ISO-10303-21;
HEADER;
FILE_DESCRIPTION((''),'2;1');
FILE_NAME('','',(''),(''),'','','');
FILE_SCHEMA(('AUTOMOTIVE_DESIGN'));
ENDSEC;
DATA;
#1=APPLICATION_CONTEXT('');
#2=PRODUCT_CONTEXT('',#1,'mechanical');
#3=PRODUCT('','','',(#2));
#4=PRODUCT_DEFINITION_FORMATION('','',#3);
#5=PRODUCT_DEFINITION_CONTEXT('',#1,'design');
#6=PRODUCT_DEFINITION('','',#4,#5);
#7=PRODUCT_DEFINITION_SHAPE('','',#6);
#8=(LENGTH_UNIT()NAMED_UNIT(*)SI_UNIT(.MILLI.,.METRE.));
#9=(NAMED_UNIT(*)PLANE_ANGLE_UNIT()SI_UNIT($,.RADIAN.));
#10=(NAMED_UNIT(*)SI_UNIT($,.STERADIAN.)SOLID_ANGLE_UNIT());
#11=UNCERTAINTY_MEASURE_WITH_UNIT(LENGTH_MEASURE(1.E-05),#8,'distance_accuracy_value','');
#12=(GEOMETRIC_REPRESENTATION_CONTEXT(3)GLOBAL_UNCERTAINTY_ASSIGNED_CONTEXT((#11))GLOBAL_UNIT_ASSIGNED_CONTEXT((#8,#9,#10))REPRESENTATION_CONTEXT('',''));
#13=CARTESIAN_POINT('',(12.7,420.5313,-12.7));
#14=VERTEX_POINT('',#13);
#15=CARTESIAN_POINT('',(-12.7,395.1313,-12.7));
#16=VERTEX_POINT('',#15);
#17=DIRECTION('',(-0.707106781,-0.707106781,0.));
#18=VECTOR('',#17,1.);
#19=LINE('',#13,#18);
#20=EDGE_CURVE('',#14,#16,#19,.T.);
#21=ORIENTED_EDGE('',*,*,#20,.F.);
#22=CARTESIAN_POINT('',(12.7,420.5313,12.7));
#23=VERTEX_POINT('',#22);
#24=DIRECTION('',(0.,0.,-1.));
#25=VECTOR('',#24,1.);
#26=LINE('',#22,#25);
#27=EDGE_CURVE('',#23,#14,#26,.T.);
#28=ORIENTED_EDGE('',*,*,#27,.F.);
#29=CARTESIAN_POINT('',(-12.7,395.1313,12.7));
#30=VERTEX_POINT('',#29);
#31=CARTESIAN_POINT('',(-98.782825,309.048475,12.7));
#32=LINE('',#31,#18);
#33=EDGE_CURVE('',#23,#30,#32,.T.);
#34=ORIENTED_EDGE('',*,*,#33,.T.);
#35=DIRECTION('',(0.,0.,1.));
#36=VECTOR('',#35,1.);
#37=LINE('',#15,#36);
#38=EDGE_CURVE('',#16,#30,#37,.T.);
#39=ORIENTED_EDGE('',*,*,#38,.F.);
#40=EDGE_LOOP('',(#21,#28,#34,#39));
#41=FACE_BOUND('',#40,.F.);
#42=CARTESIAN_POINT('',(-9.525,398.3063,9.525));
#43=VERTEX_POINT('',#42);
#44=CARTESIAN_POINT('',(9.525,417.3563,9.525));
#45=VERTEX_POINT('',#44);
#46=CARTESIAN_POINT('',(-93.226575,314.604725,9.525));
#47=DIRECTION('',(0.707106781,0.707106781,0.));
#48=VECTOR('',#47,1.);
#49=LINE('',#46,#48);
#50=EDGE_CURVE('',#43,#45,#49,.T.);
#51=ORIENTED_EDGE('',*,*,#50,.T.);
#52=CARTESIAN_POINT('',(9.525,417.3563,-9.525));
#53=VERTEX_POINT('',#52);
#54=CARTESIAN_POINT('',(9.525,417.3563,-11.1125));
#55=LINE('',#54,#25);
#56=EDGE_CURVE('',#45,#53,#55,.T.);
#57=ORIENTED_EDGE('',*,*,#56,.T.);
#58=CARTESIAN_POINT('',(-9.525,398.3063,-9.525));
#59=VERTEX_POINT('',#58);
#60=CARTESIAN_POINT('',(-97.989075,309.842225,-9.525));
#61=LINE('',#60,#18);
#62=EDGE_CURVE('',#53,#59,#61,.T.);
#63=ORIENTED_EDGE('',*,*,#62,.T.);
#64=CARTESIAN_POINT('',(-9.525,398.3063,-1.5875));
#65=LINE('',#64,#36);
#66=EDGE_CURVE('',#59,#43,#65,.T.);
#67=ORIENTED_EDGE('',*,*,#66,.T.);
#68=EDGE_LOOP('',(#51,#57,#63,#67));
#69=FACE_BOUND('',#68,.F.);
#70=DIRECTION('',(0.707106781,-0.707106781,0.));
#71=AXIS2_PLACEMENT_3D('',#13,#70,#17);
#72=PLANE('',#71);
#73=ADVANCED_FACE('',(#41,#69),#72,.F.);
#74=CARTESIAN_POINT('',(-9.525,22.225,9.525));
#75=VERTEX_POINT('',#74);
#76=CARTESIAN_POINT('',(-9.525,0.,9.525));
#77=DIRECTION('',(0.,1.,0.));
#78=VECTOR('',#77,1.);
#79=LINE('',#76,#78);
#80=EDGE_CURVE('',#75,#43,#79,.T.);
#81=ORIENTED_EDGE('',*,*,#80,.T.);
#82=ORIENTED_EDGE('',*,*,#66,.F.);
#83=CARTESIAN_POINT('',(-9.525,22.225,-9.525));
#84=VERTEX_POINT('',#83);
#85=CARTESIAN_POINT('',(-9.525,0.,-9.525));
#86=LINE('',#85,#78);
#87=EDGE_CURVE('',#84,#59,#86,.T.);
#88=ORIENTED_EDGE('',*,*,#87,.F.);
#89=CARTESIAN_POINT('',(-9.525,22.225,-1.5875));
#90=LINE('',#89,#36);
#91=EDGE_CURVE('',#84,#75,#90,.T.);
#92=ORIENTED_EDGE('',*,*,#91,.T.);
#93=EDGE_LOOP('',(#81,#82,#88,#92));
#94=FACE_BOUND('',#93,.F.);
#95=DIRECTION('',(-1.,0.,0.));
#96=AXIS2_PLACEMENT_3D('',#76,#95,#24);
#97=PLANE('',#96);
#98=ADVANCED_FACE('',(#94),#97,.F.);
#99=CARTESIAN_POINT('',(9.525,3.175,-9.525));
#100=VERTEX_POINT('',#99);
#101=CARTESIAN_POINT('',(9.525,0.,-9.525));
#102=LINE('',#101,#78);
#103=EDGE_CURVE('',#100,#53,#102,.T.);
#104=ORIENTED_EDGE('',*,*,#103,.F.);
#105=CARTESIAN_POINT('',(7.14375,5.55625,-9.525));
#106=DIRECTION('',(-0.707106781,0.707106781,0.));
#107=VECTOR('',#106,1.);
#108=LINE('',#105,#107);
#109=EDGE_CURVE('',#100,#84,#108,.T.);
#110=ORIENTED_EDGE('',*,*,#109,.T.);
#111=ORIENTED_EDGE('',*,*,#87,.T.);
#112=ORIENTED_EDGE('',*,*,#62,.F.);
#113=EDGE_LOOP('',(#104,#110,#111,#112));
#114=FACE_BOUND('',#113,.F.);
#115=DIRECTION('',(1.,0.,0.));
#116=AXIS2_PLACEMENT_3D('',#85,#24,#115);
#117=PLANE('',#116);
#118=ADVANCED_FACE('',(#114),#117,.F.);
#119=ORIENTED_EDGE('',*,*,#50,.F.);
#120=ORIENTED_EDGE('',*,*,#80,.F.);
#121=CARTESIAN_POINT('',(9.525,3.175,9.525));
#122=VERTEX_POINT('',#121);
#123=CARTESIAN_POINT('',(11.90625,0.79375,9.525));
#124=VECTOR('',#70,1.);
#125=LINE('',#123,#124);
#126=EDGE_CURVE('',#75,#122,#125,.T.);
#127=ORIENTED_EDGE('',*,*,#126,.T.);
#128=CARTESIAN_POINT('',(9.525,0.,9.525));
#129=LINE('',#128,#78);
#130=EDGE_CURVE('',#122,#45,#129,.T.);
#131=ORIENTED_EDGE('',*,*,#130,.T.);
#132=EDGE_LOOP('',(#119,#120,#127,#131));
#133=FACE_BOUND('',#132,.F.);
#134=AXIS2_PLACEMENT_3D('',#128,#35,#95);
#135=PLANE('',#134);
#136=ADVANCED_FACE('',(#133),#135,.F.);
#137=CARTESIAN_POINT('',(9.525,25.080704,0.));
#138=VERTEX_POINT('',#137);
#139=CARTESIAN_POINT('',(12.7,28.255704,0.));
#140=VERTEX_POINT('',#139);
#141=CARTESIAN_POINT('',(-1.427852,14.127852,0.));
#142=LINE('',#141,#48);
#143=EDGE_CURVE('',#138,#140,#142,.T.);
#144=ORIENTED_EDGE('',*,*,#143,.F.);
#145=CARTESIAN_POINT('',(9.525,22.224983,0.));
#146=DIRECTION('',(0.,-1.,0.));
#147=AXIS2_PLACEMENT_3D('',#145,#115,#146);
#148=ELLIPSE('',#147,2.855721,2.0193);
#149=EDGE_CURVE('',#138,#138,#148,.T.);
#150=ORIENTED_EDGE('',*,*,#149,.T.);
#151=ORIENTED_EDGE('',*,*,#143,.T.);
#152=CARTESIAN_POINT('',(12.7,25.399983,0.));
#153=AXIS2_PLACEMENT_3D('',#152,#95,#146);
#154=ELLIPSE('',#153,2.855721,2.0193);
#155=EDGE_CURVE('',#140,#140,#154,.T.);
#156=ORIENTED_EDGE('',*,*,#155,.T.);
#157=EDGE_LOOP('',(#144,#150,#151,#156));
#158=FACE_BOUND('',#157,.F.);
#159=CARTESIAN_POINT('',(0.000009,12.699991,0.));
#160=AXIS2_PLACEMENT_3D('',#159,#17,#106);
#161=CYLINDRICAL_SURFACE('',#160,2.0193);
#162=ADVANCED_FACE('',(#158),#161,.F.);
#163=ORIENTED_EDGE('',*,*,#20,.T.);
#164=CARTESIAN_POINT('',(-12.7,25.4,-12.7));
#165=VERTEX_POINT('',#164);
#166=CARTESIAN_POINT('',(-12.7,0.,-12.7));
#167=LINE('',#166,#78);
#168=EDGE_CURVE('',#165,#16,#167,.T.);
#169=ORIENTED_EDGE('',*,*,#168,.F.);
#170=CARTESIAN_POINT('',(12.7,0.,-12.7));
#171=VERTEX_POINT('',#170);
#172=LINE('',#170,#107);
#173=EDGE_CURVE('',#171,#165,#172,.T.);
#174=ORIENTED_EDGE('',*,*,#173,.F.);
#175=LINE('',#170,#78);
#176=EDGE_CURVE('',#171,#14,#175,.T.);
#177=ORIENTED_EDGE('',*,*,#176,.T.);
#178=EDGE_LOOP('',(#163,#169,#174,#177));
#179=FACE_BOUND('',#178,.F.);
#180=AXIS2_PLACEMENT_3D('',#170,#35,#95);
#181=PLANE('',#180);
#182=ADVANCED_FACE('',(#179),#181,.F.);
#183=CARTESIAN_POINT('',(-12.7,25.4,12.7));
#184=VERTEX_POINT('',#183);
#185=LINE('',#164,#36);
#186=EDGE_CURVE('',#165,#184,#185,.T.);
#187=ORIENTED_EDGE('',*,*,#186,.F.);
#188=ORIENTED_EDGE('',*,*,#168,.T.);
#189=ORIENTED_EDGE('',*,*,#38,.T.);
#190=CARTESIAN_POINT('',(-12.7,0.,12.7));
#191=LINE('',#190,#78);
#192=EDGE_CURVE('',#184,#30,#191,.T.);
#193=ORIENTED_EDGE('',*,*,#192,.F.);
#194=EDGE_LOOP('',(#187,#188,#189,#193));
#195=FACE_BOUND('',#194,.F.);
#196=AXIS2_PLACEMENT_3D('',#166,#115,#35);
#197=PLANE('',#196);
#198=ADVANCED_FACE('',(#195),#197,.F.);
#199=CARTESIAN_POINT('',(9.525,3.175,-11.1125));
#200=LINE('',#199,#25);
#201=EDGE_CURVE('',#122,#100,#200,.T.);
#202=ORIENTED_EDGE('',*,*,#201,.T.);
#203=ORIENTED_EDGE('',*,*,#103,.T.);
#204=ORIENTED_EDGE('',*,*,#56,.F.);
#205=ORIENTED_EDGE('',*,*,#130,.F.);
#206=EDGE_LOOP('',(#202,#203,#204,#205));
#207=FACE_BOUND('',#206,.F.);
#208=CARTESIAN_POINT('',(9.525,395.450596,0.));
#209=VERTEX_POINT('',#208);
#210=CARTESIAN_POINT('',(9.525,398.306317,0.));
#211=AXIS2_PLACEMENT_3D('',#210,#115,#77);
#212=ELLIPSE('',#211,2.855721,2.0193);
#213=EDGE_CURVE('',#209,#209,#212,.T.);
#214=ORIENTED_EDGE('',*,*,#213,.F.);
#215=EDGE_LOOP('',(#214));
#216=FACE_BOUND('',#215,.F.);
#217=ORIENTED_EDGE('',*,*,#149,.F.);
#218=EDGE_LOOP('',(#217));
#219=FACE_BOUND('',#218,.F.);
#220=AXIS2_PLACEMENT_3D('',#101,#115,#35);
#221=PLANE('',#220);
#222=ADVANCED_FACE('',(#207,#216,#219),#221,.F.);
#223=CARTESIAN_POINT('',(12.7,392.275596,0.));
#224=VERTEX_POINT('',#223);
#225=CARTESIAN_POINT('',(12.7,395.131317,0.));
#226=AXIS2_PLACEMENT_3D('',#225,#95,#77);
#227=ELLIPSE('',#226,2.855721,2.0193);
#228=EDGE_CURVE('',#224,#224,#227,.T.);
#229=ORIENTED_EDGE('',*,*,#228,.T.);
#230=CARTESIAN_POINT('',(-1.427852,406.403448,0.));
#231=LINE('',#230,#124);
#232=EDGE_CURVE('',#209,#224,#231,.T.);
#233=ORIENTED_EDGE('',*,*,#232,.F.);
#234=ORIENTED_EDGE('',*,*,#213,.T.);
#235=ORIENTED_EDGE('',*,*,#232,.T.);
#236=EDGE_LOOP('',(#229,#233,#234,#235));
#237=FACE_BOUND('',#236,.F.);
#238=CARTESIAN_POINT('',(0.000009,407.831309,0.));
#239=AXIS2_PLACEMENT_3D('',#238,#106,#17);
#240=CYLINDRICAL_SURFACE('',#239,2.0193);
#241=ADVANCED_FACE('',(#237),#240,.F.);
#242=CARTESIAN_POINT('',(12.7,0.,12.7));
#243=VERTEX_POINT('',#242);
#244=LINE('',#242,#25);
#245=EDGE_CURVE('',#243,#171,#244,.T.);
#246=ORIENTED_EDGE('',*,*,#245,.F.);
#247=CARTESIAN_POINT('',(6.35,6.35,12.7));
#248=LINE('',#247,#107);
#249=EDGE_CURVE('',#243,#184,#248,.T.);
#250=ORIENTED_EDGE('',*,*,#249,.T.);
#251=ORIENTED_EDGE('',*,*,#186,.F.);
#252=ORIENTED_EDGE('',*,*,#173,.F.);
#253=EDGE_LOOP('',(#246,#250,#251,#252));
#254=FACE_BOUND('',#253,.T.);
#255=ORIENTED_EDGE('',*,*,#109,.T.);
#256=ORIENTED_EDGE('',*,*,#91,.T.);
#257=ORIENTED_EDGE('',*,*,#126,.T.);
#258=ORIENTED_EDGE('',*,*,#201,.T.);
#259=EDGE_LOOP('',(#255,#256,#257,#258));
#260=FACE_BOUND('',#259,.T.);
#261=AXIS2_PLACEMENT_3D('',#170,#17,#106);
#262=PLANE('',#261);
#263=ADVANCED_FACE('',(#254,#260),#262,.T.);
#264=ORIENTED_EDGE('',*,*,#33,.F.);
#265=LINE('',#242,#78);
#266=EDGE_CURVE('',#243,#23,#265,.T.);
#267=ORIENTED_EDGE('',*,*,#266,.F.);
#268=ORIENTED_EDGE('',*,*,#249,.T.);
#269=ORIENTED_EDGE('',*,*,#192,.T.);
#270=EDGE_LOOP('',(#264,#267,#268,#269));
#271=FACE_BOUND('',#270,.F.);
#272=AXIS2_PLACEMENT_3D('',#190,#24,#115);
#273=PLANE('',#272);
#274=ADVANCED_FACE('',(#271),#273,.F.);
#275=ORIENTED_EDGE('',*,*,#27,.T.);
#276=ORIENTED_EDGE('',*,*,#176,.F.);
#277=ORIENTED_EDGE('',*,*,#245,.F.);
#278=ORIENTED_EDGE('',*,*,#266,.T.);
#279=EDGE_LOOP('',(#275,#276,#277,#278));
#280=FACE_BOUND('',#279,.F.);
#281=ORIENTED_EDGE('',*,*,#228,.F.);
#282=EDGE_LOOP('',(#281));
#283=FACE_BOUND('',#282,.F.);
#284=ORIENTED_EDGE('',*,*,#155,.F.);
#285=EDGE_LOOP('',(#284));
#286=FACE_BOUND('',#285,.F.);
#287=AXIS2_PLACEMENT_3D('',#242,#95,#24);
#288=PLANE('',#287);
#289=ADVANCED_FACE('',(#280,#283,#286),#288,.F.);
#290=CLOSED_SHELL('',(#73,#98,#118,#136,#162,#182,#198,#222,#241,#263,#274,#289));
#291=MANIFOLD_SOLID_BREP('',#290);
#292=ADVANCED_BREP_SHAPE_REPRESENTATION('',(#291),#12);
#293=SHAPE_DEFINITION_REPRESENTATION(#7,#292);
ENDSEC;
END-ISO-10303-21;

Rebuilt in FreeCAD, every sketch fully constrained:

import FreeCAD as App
import Part
import Sketcher

V = App.Vector
Q = App.Units.Quantity

doc = App.newDocument("Part")
body = doc.addObject("PartDesign::Body", "Body")

# Sketch on XZ plane
sketch1 = body.newObject("Sketcher::SketchObject", "Sketch")
sketch1.AttachmentSupport = (doc.getObject("XZ_Plane"), [""])
sketch1.MapMode = "FlatFace"
sketch1.addGeometry([
    Part.LineSegment(V(12.7, 12.7, 0), V(12.7, -12.7, 0)),  # 0
    Part.LineSegment(V(12.7, -12.7, 0), V(-12.7, -12.7, 0)),  # 1
    Part.LineSegment(V(-12.7, -12.7, 0), V(-12.7, 12.7, 0)),  # 2
    Part.LineSegment(V(-12.7, 12.7, 0), V(12.7, 12.7, 0)),  # 3
    Part.LineSegment(V(9.525, 9.525, 0), V(-9.525, 9.525, 0)),  # 4
    Part.LineSegment(V(-9.525, 9.525, 0), V(-9.525, -9.525, 0)),  # 5
    Part.LineSegment(V(-9.525, -9.525, 0), V(9.525, -9.525, 0)),  # 6
    Part.LineSegment(V(9.525, -9.525, 0), V(9.525, 9.525, 0)),  # 7
], False)
sketch1.addConstraint([
    Sketcher.Constraint("Coincident", 0, 2, 1, 1),
    Sketcher.Constraint("Coincident", 1, 2, 2, 1),
    Sketcher.Constraint("Coincident", 2, 2, 3, 1),
    Sketcher.Constraint("Coincident", 3, 2, 0, 1),
    Sketcher.Constraint("Coincident", 4, 2, 5, 1),
    Sketcher.Constraint("Coincident", 5, 2, 6, 1),
    Sketcher.Constraint("Coincident", 6, 2, 7, 1),
    Sketcher.Constraint("Coincident", 7, 2, 4, 1),
    Sketcher.Constraint("Vertical", 0),
    Sketcher.Constraint("Horizontal", 1),
    Sketcher.Constraint("Vertical", 2),
    Sketcher.Constraint("Horizontal", 3),
    Sketcher.Constraint("Horizontal", 4),
    Sketcher.Constraint("Vertical", 5),
    Sketcher.Constraint("Horizontal", 6),
    Sketcher.Constraint("Vertical", 7),
    Sketcher.Constraint("Symmetric", 0, 2, 2, 2, -1, 1),
    Sketcher.Constraint("Symmetric", 4, 2, 6, 2, -1, 1),
    Sketcher.Constraint("Equal", 3, 0),
    Sketcher.Constraint("Equal", 6, 5),
    Sketcher.Constraint("DistanceX", 1, 2, 1, 1, Q("1 in")),
    Sketcher.Constraint("DistanceX", 2, 2, 4, 2, Q("0.125 in")),
])
pad1 = body.newObject("PartDesign::Pad", "Pad")
pad1.Profile = sketch1
pad1.Length = 420.5313
pad1.Reversed = True

# Sketch on XY plane
sketch2 = body.newObject("Sketcher::SketchObject", "Sketch001")
sketch2.AttachmentSupport = (doc.getObject("XY_Plane"), [""])
sketch2.MapMode = "FlatFace"
sketch2.AttachmentOffset = App.Placement(V(0, 0, -0.5 * 25.4), App.Rotation())
sketch2.addGeometry([
    Part.LineSegment(V(-12.7, 25.4, 0), V(12.7, 0, 0)),  # 0
    Part.LineSegment(V(12.7, 0, 0), V(-12.7, 0, 0)),  # 1
    Part.LineSegment(V(-12.7, 0, 0), V(-12.7, 25.4, 0)),  # 2
    Part.LineSegment(V(-12.7, 420.5313, 0), V(12.7, 420.5313, 0)),  # 3
    Part.LineSegment(V(12.7, 420.5313, 0), V(-12.7, 395.1313, 0)),  # 4
    Part.LineSegment(V(-12.7, 395.1313, 0), V(-12.7, 420.5313, 0)),  # 5
], False)
sketch2.addConstraint([
    Sketcher.Constraint("Coincident", 0, 2, 1, 1),
    Sketcher.Constraint("Coincident", 1, 2, 2, 1),
    Sketcher.Constraint("Coincident", 2, 2, 0, 1),
    Sketcher.Constraint("Coincident", 3, 2, 4, 1),
    Sketcher.Constraint("Coincident", 4, 2, 5, 1),
    Sketcher.Constraint("Coincident", 5, 2, 3, 1),
    Sketcher.Constraint("Horizontal", 1),
    Sketcher.Constraint("Vertical", 2),
    Sketcher.Constraint("Horizontal", 3),
    Sketcher.Constraint("Vertical", 5),
    Sketcher.Constraint("Symmetric", 0, 2, 1, 2, -1, 1),
    Sketcher.Constraint("Perpendicular", 0, 4),
    Sketcher.Constraint("Vertical", 0, 2, 3, 2),
    Sketcher.Constraint("Vertical", 2, 2, 4, 2),
    Sketcher.Constraint("Equal", 3, 2),
    Sketcher.Constraint("DistanceX", 1, 2, 1, 1, Q("1 in")),
    Sketcher.Constraint("DistanceY", -1, 1, 3, 2, 420.5313),
])
pocket1 = body.newObject("PartDesign::Pocket", "Pocket")
pocket1.Profile = sketch2
pocket1.Length = Q("17.763 in")
pocket1.Reversed = True

# Sketch on an angled plane
sketch3 = body.newObject("Sketcher::SketchObject", "Sketch002")
sketch3.Placement = App.Placement(V(12.7, 0, 12.7), App.Rotation(V(-0.707106781, 0.707106781, 0), V(0, 0, -0.999999999), V(-0.707106781, -0.707106781, 0), "ZXY"))
sketch3.addGeometry(Part.Circle(V(17.9605, 12.7, 0), V(0, 0, 1), 2.0193), False)
sketch3.addConstraint([
    Sketcher.Constraint("Diameter", 0, Q("0.159 in")),
    Sketcher.Constraint("DistanceY", -1, 1, 0, 3, Q("0.5 in")),
    Sketcher.Constraint("DistanceX", -1, 1, 0, 3, Q("0.7071 in")),
])
pocket2 = body.newObject("PartDesign::Pocket", "Pocket001")
pocket2.Profile = sketch3
pocket2.Type = "ThroughAll"

# Sketch on an angled plane
sketch4 = body.newObject("Sketcher::SketchObject", "Sketch003")
sketch4.Placement = App.Placement(V(12.7, 420.5313, -12.7), App.Rotation(V(-0.707106781, -0.707106781, 0), V(0, 0, 0.999999999), V(-0.707106781, 0.707106781, 0), "ZXY"))
sketch4.addGeometry(Part.Circle(V(17.9605, 12.7, 0), V(0, 0, 1), 2.0193), False)
sketch4.addConstraint([
    Sketcher.Constraint("Diameter", 0, Q("0.159 in")),
    Sketcher.Constraint("DistanceY", -1, 1, 0, 3, Q("0.5 in")),
    Sketcher.Constraint("DistanceX", -1, 1, 0, 3, Q("0.7071 in")),
])
pocket3 = body.newObject("PartDesign::Pocket", "Pocket002")
pocket3.Profile = sketch4
pocket3.Type = "ThroughAll"

doc.recompute()
